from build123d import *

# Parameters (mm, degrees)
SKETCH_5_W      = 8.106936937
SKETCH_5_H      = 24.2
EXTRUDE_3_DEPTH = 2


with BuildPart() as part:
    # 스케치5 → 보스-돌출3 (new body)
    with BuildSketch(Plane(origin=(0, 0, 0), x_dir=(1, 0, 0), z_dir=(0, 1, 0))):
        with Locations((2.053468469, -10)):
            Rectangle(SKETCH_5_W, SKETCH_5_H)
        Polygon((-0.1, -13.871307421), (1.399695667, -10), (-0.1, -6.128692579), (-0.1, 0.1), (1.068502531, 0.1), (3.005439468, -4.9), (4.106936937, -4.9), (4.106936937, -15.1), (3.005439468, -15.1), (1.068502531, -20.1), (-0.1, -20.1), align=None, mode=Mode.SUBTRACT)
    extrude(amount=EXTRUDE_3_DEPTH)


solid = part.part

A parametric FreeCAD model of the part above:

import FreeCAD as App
import Part
import Sketcher
Q = App.Units.Quantity

doc = App.newDocument("Part")
body = doc.addObject("PartDesign::Body", "Body")

sketch1 = body.newObject("Sketcher::SketchObject", "Sketch")
sketch1.AttachmentSupport = (doc.getObject("XZ_Plane"), [""])
sketch1.MapMode = "FlatFace"
sketch1.addGeometry([
    Part.LineSegment(App.Vector(-2, -2.1, 0), App.Vector(-2, 22.1, 0)),
    Part.LineSegment(App.Vector(-2, 22.1, 0), App.Vector(6.1, 22.1, 0)),
    Part.LineSegment(App.Vector(6.1, 22.1, 0), App.Vector(6.1, -2.1, 0)),
    Part.LineSegment(App.Vector(6.1, -2.1, 0), App.Vector(-2, -2.1, 0)),
    Part.LineSegment(App.Vector(-0.1, 20.1, 0), App.Vector(-0.1, 13.9, 0)),
    Part.LineSegment(App.Vector(-0.1, 13.9, 0), App.Vector(1.4, 10, 0)),
    Part.LineSegment(App.Vector(1.4, 10, 0), App.Vector(-0.1, 6.1, 0)),
    Part.LineSegment(App.Vector(-0.1, 6.1, 0), App.Vector(-0.1, -0.1, 0)),
    Part.LineSegment(App.Vector(-0.1, -0.1, 0), App.Vector(1.1, -0.1, 0)),
    Part.LineSegment(App.Vector(1.1, -0.1, 0), App.Vector(3, 4.9, 0)),
    Part.LineSegment(App.Vector(3, 4.9, 0), App.Vector(4.1, 4.9, 0)),
    Part.LineSegment(App.Vector(4.1, 4.9, 0), App.Vector(4.1, 15.1, 0)),
    Part.LineSegment(App.Vector(4.1, 15.1, 0), App.Vector(3, 15.1, 0)),
    Part.LineSegment(App.Vector(3, 15.1, 0), App.Vector(1.1, 20.1, 0)),
    Part.LineSegment(App.Vector(1.1, 20.1, 0), App.Vector(-0.1, 20.1, 0)),
], False)
sketch1.addConstraint([
    Sketcher.Constraint("Coincident", 0, 2, 1, 1),
    Sketcher.Constraint("Coincident", 1, 2, 2, 1),
    Sketcher.Constraint("Coincident", 2, 2, 3, 1),
    Sketcher.Constraint("Coincident", 3, 2, 0, 1),
    Sketcher.Constraint("Coincident", 4, 2, 5, 1),
    Sketcher.Constraint("Coincident", 5, 2, 6, 1),
    Sketcher.Constraint("Coincident", 6, 2, 7, 1),
    Sketcher.Constraint("Coincident", 7, 2, 8, 1),
    Sketcher.Constraint("Coincident", 8, 2, 9, 1),
    Sketcher.Constraint("Coincident", 9, 2, 10, 1),
    Sketcher.Constraint("Coincident", 10, 2, 11, 1),
    Sketcher.Constraint("Coincident", 11, 2, 12, 1),
    Sketcher.Constraint("Coincident", 12, 2, 13, 1),
    Sketcher.Constraint("Coincident", 13, 2, 14, 1),
    Sketcher.Constraint("Coincident", 14, 2, 4, 1),
    Sketcher.Constraint("Vertical", 0),
    Sketcher.Constraint("Horizontal", 1),
    Sketcher.Constraint("Vertical", 2),
    Sketcher.Constraint("Horizontal", 3),
    Sketcher.Constraint("Vertical", 4),
    Sketcher.Constraint("Vertical", 7),
    Sketcher.Constraint("Horizontal", 8),
    Sketcher.Constraint("Horizontal", 10),
    Sketcher.Constraint("Vertical", 11),
    Sketcher.Constraint("Horizontal", 12),
    Sketcher.Constraint("Horizontal", 14),
    Sketcher.Constraint("Parallel", 6, 9),
    Sketcher.Constraint("Parallel", 5, 13),
    Sketcher.Constraint("Vertical", 4, 2, 6, 2),
    Sketcher.Constraint("Vertical", 9, 2, 12, 2),
    Sketcher.Constraint("Vertical", 8, 2, 13, 2),
    Sketcher.Constraint("Equal", 4, 7),
    Sketcher.Constraint("Equal", 5, 6),
    Sketcher.Constraint("DistanceY", 0, 1, 0, 2, Q("24.2 mm")),
    Sketcher.Constraint("DistanceY", 11, 1, 11, 2, Q("10.2 mm")),
    Sketcher.Constraint("DistanceX", 0, 2, -1, 1, Q("2 mm")),
    Sketcher.Constraint("DistanceY", -1, 1, 5, 2, Q("10 mm")),
    Sketcher.Constraint("DistanceY", 3, 2, 7, 2, Q("2 mm")),
    Sketcher.Constraint("DistanceY", 8, 2, 9, 2, Q("5 mm")),
    Sketcher.Constraint("DistanceX", 11, 2, 1, 2, Q("2 mm")),
    Sketcher.Constraint("DistanceX", 4, 2, -1, 1, Q("0.1 mm")),
    Sketcher.Constraint("Distance", 5, Q("4.151639 mm")),
    Sketcher.Constraint("DistanceX", 1, 1, 1, 2, Q("8.106937 mm")),
    Sketcher.Constraint("DistanceX", 8, 1, 8, 2, Q("1.168503 mm")),
    Sketcher.Constraint("DistanceX", 10, 1, 10, 2, Q("1.101497 mm")),
])
pad1 = body.newObject("PartDesign::Pad", "Pad")
pad1.Profile = sketch1
pad1.Length = 2
pad1.Reversed = True

doc.recompute()
